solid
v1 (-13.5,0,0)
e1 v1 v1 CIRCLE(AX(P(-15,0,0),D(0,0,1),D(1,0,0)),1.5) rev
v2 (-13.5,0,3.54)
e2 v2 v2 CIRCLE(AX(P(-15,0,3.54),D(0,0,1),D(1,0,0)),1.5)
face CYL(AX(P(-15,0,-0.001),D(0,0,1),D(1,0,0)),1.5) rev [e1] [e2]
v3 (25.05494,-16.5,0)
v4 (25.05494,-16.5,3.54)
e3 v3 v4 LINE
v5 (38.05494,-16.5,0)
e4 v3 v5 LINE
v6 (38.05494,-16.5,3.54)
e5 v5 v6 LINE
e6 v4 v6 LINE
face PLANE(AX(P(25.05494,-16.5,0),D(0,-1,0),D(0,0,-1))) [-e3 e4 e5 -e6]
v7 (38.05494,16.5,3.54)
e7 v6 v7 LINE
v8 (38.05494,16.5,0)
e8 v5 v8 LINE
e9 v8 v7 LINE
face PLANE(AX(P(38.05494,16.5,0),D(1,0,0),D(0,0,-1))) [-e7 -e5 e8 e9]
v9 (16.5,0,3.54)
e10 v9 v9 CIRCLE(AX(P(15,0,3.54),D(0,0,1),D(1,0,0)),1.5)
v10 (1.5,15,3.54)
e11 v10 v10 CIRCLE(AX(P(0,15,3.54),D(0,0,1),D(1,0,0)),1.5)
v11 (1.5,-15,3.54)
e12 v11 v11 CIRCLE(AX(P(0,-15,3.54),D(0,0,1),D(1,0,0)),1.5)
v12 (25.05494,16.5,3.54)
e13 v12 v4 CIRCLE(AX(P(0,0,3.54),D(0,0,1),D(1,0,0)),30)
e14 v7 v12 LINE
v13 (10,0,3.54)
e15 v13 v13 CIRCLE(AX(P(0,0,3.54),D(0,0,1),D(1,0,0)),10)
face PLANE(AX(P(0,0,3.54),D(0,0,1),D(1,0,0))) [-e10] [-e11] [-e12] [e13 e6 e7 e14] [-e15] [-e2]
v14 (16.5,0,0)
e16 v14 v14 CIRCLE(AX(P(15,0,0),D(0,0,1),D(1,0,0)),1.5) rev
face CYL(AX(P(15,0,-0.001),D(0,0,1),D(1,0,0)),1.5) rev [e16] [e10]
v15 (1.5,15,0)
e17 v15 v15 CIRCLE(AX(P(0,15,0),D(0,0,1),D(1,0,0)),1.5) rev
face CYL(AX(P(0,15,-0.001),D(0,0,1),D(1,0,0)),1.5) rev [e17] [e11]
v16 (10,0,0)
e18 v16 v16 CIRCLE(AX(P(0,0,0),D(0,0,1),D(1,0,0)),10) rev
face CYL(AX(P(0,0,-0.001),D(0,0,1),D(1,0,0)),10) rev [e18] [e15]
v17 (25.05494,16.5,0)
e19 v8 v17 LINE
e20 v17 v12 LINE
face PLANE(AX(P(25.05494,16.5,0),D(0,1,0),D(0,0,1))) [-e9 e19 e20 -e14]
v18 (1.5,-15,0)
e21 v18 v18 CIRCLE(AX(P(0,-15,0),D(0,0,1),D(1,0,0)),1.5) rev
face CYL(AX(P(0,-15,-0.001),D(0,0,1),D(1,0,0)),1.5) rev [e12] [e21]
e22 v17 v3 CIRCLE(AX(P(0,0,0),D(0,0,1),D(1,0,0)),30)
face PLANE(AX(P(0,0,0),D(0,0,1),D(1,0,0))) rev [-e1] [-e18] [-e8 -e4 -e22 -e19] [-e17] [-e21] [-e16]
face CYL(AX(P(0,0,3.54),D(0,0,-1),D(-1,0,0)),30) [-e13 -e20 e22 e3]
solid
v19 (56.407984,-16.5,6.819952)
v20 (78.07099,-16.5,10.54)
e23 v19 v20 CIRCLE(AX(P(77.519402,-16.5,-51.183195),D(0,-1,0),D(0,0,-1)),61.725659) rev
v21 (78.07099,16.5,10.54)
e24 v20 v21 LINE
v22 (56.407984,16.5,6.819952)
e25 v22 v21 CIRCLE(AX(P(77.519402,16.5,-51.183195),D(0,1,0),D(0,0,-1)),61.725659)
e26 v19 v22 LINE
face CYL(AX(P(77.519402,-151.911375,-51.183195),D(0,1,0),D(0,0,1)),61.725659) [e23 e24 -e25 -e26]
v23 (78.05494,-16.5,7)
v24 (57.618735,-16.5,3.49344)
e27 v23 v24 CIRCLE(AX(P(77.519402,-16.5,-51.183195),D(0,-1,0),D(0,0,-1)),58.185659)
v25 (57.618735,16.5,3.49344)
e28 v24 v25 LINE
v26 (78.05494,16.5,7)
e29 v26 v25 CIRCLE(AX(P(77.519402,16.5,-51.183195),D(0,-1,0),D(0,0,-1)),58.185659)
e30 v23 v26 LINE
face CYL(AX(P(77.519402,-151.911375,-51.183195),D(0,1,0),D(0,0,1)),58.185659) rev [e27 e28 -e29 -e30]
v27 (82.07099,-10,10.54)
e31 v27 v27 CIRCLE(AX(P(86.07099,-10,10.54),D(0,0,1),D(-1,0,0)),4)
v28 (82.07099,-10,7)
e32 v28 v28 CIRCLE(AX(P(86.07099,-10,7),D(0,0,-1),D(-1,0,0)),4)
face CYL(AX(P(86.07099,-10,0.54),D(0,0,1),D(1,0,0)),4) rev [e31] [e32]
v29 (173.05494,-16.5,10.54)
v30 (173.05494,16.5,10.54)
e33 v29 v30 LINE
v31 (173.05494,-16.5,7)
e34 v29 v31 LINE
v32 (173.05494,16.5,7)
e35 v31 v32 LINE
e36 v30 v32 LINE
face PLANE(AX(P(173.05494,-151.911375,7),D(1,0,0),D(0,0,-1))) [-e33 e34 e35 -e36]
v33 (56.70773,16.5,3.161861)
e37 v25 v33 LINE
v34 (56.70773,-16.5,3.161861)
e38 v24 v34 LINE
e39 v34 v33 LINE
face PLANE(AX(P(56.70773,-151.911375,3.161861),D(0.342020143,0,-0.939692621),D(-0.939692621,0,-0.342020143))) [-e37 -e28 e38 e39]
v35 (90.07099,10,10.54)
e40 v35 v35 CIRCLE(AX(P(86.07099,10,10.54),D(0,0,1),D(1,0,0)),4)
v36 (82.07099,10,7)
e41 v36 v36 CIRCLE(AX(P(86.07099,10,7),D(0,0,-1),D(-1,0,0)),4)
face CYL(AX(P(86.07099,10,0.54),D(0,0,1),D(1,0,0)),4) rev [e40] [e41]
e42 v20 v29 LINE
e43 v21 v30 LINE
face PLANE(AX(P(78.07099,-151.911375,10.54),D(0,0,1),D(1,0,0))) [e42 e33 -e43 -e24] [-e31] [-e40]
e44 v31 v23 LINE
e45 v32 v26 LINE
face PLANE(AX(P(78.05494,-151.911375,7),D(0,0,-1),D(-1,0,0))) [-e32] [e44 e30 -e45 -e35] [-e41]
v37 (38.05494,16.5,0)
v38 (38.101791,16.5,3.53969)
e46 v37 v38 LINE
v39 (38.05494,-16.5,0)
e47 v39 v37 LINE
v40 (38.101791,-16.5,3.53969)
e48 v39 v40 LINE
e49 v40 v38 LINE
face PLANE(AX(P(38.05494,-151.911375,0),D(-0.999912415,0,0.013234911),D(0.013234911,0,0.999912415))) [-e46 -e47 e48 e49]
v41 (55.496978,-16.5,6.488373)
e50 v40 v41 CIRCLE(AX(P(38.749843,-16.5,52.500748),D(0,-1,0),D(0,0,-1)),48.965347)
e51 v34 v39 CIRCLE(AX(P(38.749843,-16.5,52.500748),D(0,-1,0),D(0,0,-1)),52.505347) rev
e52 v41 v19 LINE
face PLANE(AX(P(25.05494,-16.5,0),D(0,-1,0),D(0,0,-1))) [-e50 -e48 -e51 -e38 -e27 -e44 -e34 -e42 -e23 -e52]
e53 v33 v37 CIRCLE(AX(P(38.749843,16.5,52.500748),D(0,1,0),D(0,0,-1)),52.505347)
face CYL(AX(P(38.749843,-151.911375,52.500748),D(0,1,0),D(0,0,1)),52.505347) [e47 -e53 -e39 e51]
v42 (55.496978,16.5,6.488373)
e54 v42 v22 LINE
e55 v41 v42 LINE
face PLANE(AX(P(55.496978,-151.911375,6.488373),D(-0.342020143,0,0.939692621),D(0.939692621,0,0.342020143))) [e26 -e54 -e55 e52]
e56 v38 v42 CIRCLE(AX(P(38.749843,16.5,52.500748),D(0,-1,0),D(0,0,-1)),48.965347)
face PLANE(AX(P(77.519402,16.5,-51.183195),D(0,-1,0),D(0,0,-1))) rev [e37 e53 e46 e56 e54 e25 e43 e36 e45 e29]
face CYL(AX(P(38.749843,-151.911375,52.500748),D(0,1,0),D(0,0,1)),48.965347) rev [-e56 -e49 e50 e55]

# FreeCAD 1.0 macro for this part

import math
import FreeCAD as App
import Part
import Sketcher
from FreeCAD import Vector
Q = App.Units.Quantity

doc = App.newDocument("Part")
body = doc.addObject("PartDesign::Body", "Body")

sketch1 = doc.addObject("Sketcher::SketchObject", "Sketch")
body.addObject(sketch1)
sketch1.AttachmentSupport = (doc.XY_Plane, [""])
sketch1.MapMode = "FlatFace"
sketch1.addGeometry(Part.Circle(Vector(0, 0, 0), Vector(0, 0, 1), 30), False)
sketch1.addConstraint([
    Sketcher.Constraint("Coincident", 0, 3, -1, 1),
    Sketcher.Constraint("Diameter", 0, 60.0),
])
pad1 = doc.addObject("PartDesign::Pad", "Pad")
body.addObject(pad1)
pad1.Profile = sketch1
pad1.Length = 3.54

sketch2 = doc.addObject("Sketcher::SketchObject", "Sketch001")
body.addObject(sketch2)
sketch2.AttachmentSupport = (doc.XY_Plane, [""])
sketch2.MapMode = "FlatFace"
sketch2.addGeometry([
    Part.LineSegment(Vector(38.05494, 16.5, 0), Vector(25.05494, 16.5, 0)),
    Part.ArcOfCircle(Part.Circle(Vector(0, 0, 0), Vector(0, 0, 1), 30), math.radians(-33.367013), math.radians(33.367013)),
    Part.LineSegment(Vector(25.05494, -16.5, 0), Vector(38.05494, -16.5, 0)),
    Part.LineSegment(Vector(38.05494, -16.5, 0), Vector(38.05494, 16.5, 0)),
], False)
sketch2.addConstraint([
    Sketcher.Constraint("Coincident", 0, 2, 1, 2),
    Sketcher.Constraint("Coincident", 1, 1, 2, 1),
    Sketcher.Constraint("Coincident", 2, 2, 3, 1),
    Sketcher.Constraint("Coincident", 3, 2, 0, 1),
    Sketcher.Constraint("Horizontal", 0),
    Sketcher.Constraint("Horizontal", 2),
    Sketcher.Constraint("Vertical", 3),
    Sketcher.Constraint("Coincident", 1, 3, -1, 1),
    Sketcher.Constraint("Vertical", 0, 2, 1, 1),
    Sketcher.Constraint("Radius", 1, 30.0),
    Sketcher.Constraint("DistanceX", 0, 2, 0, 1, 13.0),
    Sketcher.Constraint("DistanceY", 3, 1, 3, 2, 33.0),
])
pad2 = doc.addObject("PartDesign::Pad", "Pad001")
body.addObject(pad2)
pad2.Profile = sketch2
pad2.Length = 3.54

sketch3 = doc.addObject("Sketcher::SketchObject", "Sketch002")
body.addObject(sketch3)
sketch3.AttachmentSupport = (doc.XY_Plane, [""])
sketch3.MapMode = "FlatFace"
sketch3.AttachmentOffset = App.Placement(Vector(0, 0, 3.54), App.Rotation())
sketch3.addGeometry(Part.Circle(Vector(0, 0, 0), Vector(0, 0, 1), 10), False)
sketch3.addConstraint([
    Sketcher.Constraint("Coincident", 0, 3, -1, 1),
    Sketcher.Constraint("Diameter", 0, 20.0),
])
pocket1 = doc.addObject("PartDesign::Pocket", "Pocket")
body.addObject(pocket1)
pocket1.Profile = sketch3
pocket1.Type = "UpToFirst"

sketch4 = doc.addObject("Sketcher::SketchObject", "Sketch003")
body.addObject(sketch4)
sketch4.AttachmentSupport = (doc.XY_Plane, [""])
sketch4.MapMode = "FlatFace"
sketch4.AttachmentOffset = App.Placement(Vector(0, 0, 3.54), App.Rotation())
sketch4.addGeometry(Part.Circle(Vector(0, 15, 0), Vector(0, 0, 1), 1.5), False)
sketch4.addConstraint([
    Sketcher.Constraint("PointOnObject", 0, 3, -2),
    Sketcher.Constraint("Diameter", 0, 3.0),
    Sketcher.Constraint("DistanceY", -1, 1, 0, 3, 15.0),
])
pocket2 = doc.addObject("PartDesign::Pocket", "Pocket001")
body.addObject(pocket2)
pocket2.Profile = sketch4
pocket2.Type = "UpToFirst"

sketch5 = doc.addObject("Sketcher::SketchObject", "Sketch004")
body.addObject(sketch5)
sketch5.AttachmentSupport = (doc.XY_Plane, [""])
sketch5.MapMode = "FlatFace"
sketch5.AttachmentOffset = App.Placement(Vector(0, 0, 3.54), App.Rotation())
sketch5.addGeometry(Part.Circle(Vector(15, 0, 0), Vector(0, 0, 1), 1.5), False)
sketch5.addConstraint([
    Sketcher.Constraint("PointOnObject", 0, 3, -1),
    Sketcher.Constraint("Diameter", 0, 3.0),
    Sketcher.Constraint("DistanceX", -1, 1, 0, 3, 15.0),
])
pocket3 = doc.addObject("PartDesign::Pocket", "Pocket002")
body.addObject(pocket3)
pocket3.Profile = sketch5
pocket3.Type = "UpToFirst"

sketch6 = doc.addObject("Sketcher::SketchObject", "Sketch005")
body.addObject(sketch6)
sketch6.AttachmentSupport = (doc.XY_Plane, [""])
sketch6.MapMode = "FlatFace"
sketch6.AttachmentOffset = App.Placement(Vector(0, 0, 3.54), App.Rotation())
sketch6.addGeometry(Part.Circle(Vector(0, -15, 0), Vector(0, 0, 1), 1.5), False)
sketch6.addConstraint([
    Sketcher.Constraint("PointOnObject", 0, 3, -2),
    Sketcher.Constraint("Diameter", 0, 3.0),
    Sketcher.Constraint("DistanceY", 0, 3, -1, 1, 15.0),
])
pocket4 = doc.addObject("PartDesign::Pocket", "Pocket003")
body.addObject(pocket4)
pocket4.Profile = sketch6
pocket4.Type = "UpToFirst"

sketch7 = doc.addObject("Sketcher::SketchObject", "Sketch006")
body.addObject(sketch7)
sketch7.AttachmentSupport = (doc.XY_Plane, [""])
sketch7.MapMode = "FlatFace"
sketch7.AttachmentOffset = App.Placement(Vector(0, 0, 3.54), App.Rotation())
sketch7.addGeometry(Part.Circle(Vector(-15, 0, 0), Vector(0, 0, 1), 1.5), False)
sketch7.addConstraint([
    Sketcher.Constraint("PointOnObject", 0, 3, -1),
    Sketcher.Constraint("Diameter", 0, 3.0),
    Sketcher.Constraint("DistanceX", 0, 3, -1, 1, 15.0),
])
pocket5 = doc.addObject("PartDesign::Pocket", "Pocket004")
body.addObject(pocket5)
pocket5.Profile = sketch7
pocket5.Type = "UpToFirst"
body2 = doc.addObject("PartDesign::Body", "Body001")

sketch8 = doc.addObject("Sketcher::SketchObject", "Sketch007")
body2.addObject(sketch8)
sketch8.AttachmentSupport = (doc.getObject("XZ_Plane001"), [""])
sketch8.MapMode = "FlatFace"
sketch8.AttachmentOffset = App.Placement(Vector(0, 0, -16.5), App.Rotation())
sketch8.addGeometry([
    Part.LineSegment(Vector(173.05494, 7, 0), Vector(78.05494, 7, 0)),
    Part.ArcOfCircle(Part.Circle(Vector(77.519402, -51.183195, 0), Vector(0, 0, 1), 58.185659), math.radians(89.472646), math.radians(110)),
    Part.LineSegment(Vector(57.618735, 3.49344, 0), Vector(56.70773, 3.161861, 0)),
    Part.ArcOfCircle(Part.Circle(Vector(38.749843, 52.500748, 0), Vector(0, 0, 1), 52.505347), math.radians(-90.758327), math.radians(-70)),
    Part.LineSegment(Vector(38.05494, 0, 0), Vector(38.101791, 3.53969, 0)),
    Part.ArcOfCircle(Part.Circle(Vector(38.749843, 52.500748, 0), Vector(0, 0, 1), 48.965347), math.radians(-90.758327), math.radians(-70)),
    Part.LineSegment(Vector(55.496978, 6.488373, 0), Vector(56.407984, 6.819952, 0)),
    Part.ArcOfCircle(Part.Circle(Vector(77.519402, -51.183195, 0), Vector(0, 0, 1), 61.725659), math.radians(89.487991), math.radians(110)),
    Part.LineSegment(Vector(78.07099, 10.54, 0), Vector(173.05494, 10.54, 0)),
    Part.LineSegment(Vector(173.05494, 10.54, 0), Vector(173.05494, 7, 0)),
], False)
sketch8.addConstraint([
    Sketcher.Constraint("Coincident", 0, 2, 1, 1),
    Sketcher.Constraint("Tangent", 1, 2, 2, 1),
    Sketcher.Constraint("Tangent", 2, 2, 3, 2),
    Sketcher.Constraint("Coincident", 3, 1, 4, 1),
    Sketcher.Constraint("Coincident", 4, 2, 5, 1),
    Sketcher.Constraint("Tangent", 5, 2, 6, 1),
    Sketcher.Constraint("Tangent", 6, 2, 7, 2),
    Sketcher.Constraint("Coincident", 7, 1, 8, 1),
    Sketcher.Constraint("Coincident", 8, 2, 9, 1),
    Sketcher.Constraint("Coincident", 9, 2, 0, 1),
    Sketcher.Constraint("Horizontal", 0),
    Sketcher.Constraint("Horizontal", 8),
    Sketcher.Constraint("Vertical", 9),
    Sketcher.Constraint("Coincident", 5, 3, 3, 3),
    Sketcher.Constraint("Coincident", 7, 3, 1, 3),
    Sketcher.Constraint("PointOnObject", 3, 1, -1),
    Sketcher.Constraint("Parallel", 2, 6),
    Sketcher.Constraint("DistanceX", 0, 2, 0, 1, 95.0),
    Sketcher.Constraint("Angle", 2, Q("-160 deg")),
    Sketcher.Constraint("DistanceY", -1, 1, 0, 2, 7.0),
    Sketcher.Constraint("DistanceX", 3, 1, 0, 2, 40.0),
    Sketcher.Constraint("DistanceY", 9, 2, 9, 1, 3.54),
    Sketcher.Constraint("Distance", 4, 3.54),
    Sketcher.Constraint("Radius", 1, 58.185659),
    Sketcher.Constraint("Radius", 3, 52.505347),
    Sketcher.Constraint("DistanceX", 8, 1, 8, 2, 94.983949),
    Sketcher.Constraint("DistanceX", -1, 1, 0, 2, 78.05494),
    Sketcher.Constraint("DistanceX", -1, 1, 4, 2, 38.101791),
])
pad3 = doc.addObject("PartDesign::Pad", "Pad002")
body2.addObject(pad3)
pad3.Profile = sketch8
pad3.Length = 33

sketch9 = doc.addObject("Sketcher::SketchObject", "Sketch008")
body2.addObject(sketch9)
sketch9.AttachmentSupport = (doc.getObject("XY_Plane001"), [""])
sketch9.MapMode = "FlatFace"
sketch9.AttachmentOffset = App.Placement(Vector(0, 0, 10.54), App.Rotation())
sketch9.addGeometry([
    Part.Circle(Vector(86.07099, 10, 0), Vector(0, 0, 1), 4),
    Part.Circle(Vector(86.07099, -10, 0), Vector(0, 0, 1), 4),
], False)
sketch9.addConstraint([
    Sketcher.Constraint("Equal", 0, 1),
    Sketcher.Constraint("Symmetric", 0, 3, 1, 3, -1),
    Sketcher.Constraint("Diameter", 0, 8.0),
    Sketcher.Constraint("DistanceY", -1, 1, 0, 3, 10.0),
    Sketcher.Constraint("DistanceX", -1, 1, 0, 3, 86.07099),
])
pocket6 = doc.addObject("PartDesign::Pocket", "Pocket005")
body2.addObject(pocket6)
pocket6.Profile = sketch9
pocket6.Length = 10

doc.recompute()
